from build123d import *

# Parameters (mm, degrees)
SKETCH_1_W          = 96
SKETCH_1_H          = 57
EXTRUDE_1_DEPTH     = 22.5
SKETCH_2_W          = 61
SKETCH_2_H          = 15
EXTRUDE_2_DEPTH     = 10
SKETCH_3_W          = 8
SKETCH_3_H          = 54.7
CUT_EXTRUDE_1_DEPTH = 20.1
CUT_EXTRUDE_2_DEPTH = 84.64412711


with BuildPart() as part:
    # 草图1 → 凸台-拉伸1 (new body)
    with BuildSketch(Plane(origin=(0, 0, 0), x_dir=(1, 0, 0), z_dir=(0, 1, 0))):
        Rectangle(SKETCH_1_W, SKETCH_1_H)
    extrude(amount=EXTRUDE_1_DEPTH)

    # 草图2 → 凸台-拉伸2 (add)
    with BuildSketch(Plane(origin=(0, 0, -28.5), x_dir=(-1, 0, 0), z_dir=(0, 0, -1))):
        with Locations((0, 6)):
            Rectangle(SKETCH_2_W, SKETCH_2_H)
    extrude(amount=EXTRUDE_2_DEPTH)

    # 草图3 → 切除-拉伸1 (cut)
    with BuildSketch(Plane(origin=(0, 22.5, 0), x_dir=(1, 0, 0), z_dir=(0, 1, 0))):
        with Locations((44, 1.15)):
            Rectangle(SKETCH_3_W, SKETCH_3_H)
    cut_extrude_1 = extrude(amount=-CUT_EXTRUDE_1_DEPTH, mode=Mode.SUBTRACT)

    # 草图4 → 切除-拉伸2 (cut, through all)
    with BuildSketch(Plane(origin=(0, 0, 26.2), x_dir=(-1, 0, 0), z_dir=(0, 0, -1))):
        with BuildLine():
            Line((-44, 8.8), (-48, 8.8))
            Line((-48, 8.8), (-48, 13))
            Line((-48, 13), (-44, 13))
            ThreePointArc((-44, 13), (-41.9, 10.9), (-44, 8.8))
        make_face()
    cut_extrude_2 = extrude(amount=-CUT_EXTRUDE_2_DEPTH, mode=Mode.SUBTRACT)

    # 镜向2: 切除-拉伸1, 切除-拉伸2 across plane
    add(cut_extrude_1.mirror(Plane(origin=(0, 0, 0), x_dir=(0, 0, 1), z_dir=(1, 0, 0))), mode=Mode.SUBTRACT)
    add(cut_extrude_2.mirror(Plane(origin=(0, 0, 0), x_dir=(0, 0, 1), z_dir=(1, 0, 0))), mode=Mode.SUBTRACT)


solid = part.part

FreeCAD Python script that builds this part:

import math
import FreeCAD as App
import Part
import Sketcher

V = App.Vector
Q = App.Units.Quantity

doc = App.newDocument("Part")
body = doc.addObject("PartDesign::Body", "Body")

# Sketch on XZ plane
sketch1 = body.newObject("Sketcher::SketchObject", "Sketch")
sketch1.AttachmentSupport = (doc.getObject("XZ_Plane"), [""])
sketch1.MapMode = "FlatFace"
sketch1.addGeometry([
    Part.LineSegment(V(-48, -28, 0), V(-48, 28, 0)),
    Part.LineSegment(V(-48, 28, 0), V(48, 28, 0)),
    Part.LineSegment(V(48, 28, 0), V(48, -28, 0)),
    Part.LineSegment(V(48, -28, 0), V(-48, -28, 0)),
], False)
sketch1.addConstraint([
    Sketcher.Constraint("Coincident", 0, 2, 1, 1),
    Sketcher.Constraint("Coincident", 1, 2, 2, 1),
    Sketcher.Constraint("Coincident", 2, 2, 3, 1),
    Sketcher.Constraint("Coincident", 3, 2, 0, 1),
    Sketcher.Constraint("Vertical", 0),
    Sketcher.Constraint("Horizontal", 1),
    Sketcher.Constraint("Vertical", 2),
    Sketcher.Constraint("Horizontal", 3),
    Sketcher.Constraint("Symmetric", 0, 2, 2, 2, -1, 1),
    Sketcher.Constraint("DistanceX", 1, 1, 1, 2, Q("96 mm")),
    Sketcher.Constraint("DistanceY", 0, 1, 0, 2, Q("57 mm")),
])
pad1 = body.newObject("PartDesign::Pad", "Pad")
pad1.Profile = sketch1
pad1.Length = 22.5
pad1.Reversed = True

# Sketch on XY plane
sketch2 = body.newObject("Sketcher::SketchObject", "Sketch001")
sketch2.AttachmentSupport = (doc.getObject("XY_Plane"), [""])
sketch2.MapMode = "FlatFace"
sketch2.AttachmentOffset = App.Placement(V(0, 0, -28.5), App.Rotation())
sketch2.addGeometry([
    Part.LineSegment(V(30, 14, 0), V(30, -2, 0)),
    Part.LineSegment(V(30, -2, 0), V(-30, -2, 0)),
    Part.LineSegment(V(-30, -2, 0), V(-30, 14, 0)),
    Part.LineSegment(V(-30, 14, 0), V(30, 14, 0)),
], False)
sketch2.addConstraint([
    Sketcher.Constraint("Coincident", 0, 2, 1, 1),
    Sketcher.Constraint("Coincident", 1, 2, 2, 1),
    Sketcher.Constraint("Coincident", 2, 2, 3, 1),
    Sketcher.Constraint("Coincident", 3, 2, 0, 1),
    Sketcher.Constraint("Vertical", 0),
    Sketcher.Constraint("Horizontal", 1),
    Sketcher.Constraint("Vertical", 2),
    Sketcher.Constraint("Horizontal", 3),
    Sketcher.Constraint("DistanceX", 1, 2, 1, 1, Q("61 mm")),
    Sketcher.Constraint("DistanceY", 0, 2, 0, 1, Q("15 mm")),
    Sketcher.Constraint("DistanceX", -1, 1, 0, 2, Q("30.5 mm")),
    Sketcher.Constraint("DistanceY", 0, 2, -1, 1, Q("1.5 mm")),
])
pad2 = body.newObject("PartDesign::Pad", "Pad001")
pad2.Profile = sketch2
pad2.Length = 10
pad2.Reversed = True

# Sketch on XZ plane
sketch3 = body.newObject("Sketcher::SketchObject", "Sketch002")
sketch3.AttachmentSupport = (doc.getObject("XZ_Plane"), [""])
sketch3.MapMode = "FlatFace"
sketch3.AttachmentOffset = App.Placement(V(0, 0, -22.5), App.Rotation())
sketch3.addGeometry([
    Part.LineSegment(V(40, -28, 0), V(40, 26, 0)),
    Part.LineSegment(V(40, 26, 0), V(48, 26, 0)),
    Part.LineSegment(V(48, 26, 0), V(48, -28, 0)),
    Part.LineSegment(V(48, -28, 0), V(40, -28, 0)),
], False)
sketch3.addConstraint([
    Sketcher.Constraint("Coincident", 0, 2, 1, 1),
    Sketcher.Constraint("Coincident", 1, 2, 2, 1),
    Sketcher.Constraint("Coincident", 2, 2, 3, 1),
    Sketcher.Constraint("Coincident", 3, 2, 0, 1),
    Sketcher.Constraint("Vertical", 0),
    Sketcher.Constraint("Horizontal", 1),
    Sketcher.Constraint("Vertical", 2),
    Sketcher.Constraint("Horizontal", 3),
    Sketcher.Constraint("DistanceX", 1, 1, 1, 2, Q("8 mm")),
    Sketcher.Constraint("DistanceY", 0, 1, 0, 2, Q("54.7 mm")),
    Sketcher.Constraint("DistanceX", -1, 1, 0, 2, Q("40 mm")),
    Sketcher.Constraint("DistanceY", -1, 1, 0, 2, Q("26.2 mm")),
])
pocket1 = body.newObject("PartDesign::Pocket", "Pocket")
pocket1.Profile = sketch3
pocket1.Length = 20.1
pocket1.Reversed = True

# Sketch on XY plane
sketch4 = body.newObject("Sketcher::SketchObject", "Sketch003")
sketch4.AttachmentSupport = (doc.getObject("XY_Plane"), [""])
sketch4.MapMode = "FlatFace"
sketch4.AttachmentOffset = App.Placement(V(0, 0, 26.2), App.Rotation())
sketch4.addGeometry([
    Part.LineSegment(V(48, 8.8, 0), V(44, 8.8, 0)),
    Part.ArcOfCircle(Part.Circle(V(44, 10.9, 0), V(0, 0, 1), 2.1), math.radians(90), math.radians(270)),
    Part.LineSegment(V(44, 13, 0), V(48, 13, 0)),
    Part.LineSegment(V(48, 13, 0), V(48, 8.8, 0)),
], False)
sketch4.addConstraint([
    Sketcher.Constraint("Tangent", 0, 2, 1, 2),
    Sketcher.Constraint("Tangent", 1, 1, 2, 1),
    Sketcher.Constraint("Coincident", 2, 2, 3, 1),
    Sketcher.Constraint("Coincident", 3, 2, 0, 1),
    Sketcher.Constraint("Horizontal", 0),
    Sketcher.Constraint("Horizontal", 2),
    Sketcher.Constraint("Vertical", 3),
    Sketcher.Constraint("Radius", 1, Q("2.1 mm")),
    Sketcher.Constraint("DistanceX", 0, 2, 0, 1, Q("4 mm")),
    Sketcher.Constraint("DistanceX", -1, 1, 1, 3, Q("44 mm")),
    Sketcher.Constraint("DistanceY", -1, 1, 1, 1, Q("13 mm")),
])
pocket2 = body.newObject("PartDesign::Pocket", "Pocket001")
pocket2.Profile = sketch4
pocket2.Type = "ThroughAll"
pocket2.Reversed = True
doc.recompute()

mirrored = body.newObject("PartDesign::Mirrored", "Mirrored")
mirrored.Originals = [pocket1, pocket2]
mirrored.MirrorPlane = (doc.getObject("YZ_Plane"), [""])
body.Tip = mirrored

doc.recompute()
